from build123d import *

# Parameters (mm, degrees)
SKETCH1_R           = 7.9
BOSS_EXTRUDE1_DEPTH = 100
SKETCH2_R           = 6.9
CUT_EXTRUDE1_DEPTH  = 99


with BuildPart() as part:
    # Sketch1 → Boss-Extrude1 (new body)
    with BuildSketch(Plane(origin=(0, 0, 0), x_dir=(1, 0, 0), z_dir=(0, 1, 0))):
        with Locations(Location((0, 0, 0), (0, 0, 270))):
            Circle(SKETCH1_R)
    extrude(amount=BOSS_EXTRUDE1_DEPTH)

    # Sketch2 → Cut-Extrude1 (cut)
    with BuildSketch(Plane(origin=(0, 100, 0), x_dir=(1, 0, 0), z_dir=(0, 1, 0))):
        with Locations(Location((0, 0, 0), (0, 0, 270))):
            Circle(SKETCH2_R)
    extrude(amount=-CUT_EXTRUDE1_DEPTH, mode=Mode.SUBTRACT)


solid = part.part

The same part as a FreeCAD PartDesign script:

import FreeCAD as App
import Part
import Sketcher
from FreeCAD import Vector

doc = App.newDocument("Part")
body = doc.addObject("PartDesign::Body", "Body")

# Sketch on XZ plane
sketch1 = body.newObject("Sketcher::SketchObject", "Sketch")
sketch1.AttachmentSupport = (doc.getObject("XZ_Plane"), [""])
sketch1.MapMode = "FlatFace"
sketch1.addGeometry(Part.Circle(Vector(0, 0, 0), Vector(0, 0, 1), 8), False)
sketch1.addConstraint(Sketcher.Constraint("Coincident", 0, 3, -1, 1))
sketch1.addConstraint(Sketcher.Constraint("Diameter", 0, 15.8))
pad1 = body.newObject("PartDesign::Pad", "Pad")
pad1.Profile = sketch1
pad1.Length = 100
pad1.Reversed = True

# Sketch on XZ plane
sketch2 = body.newObject("Sketcher::SketchObject", "Sketch001")
sketch2.AttachmentSupport = (doc.getObject("XZ_Plane"), [""])
sketch2.MapMode = "FlatFace"
sketch2.AttachmentOffset = App.Placement(Vector(0, 0, -100), App.Rotation())
sketch2.addGeometry(Part.Circle(Vector(0, 0, 0), Vector(0, 0, 1), 7), False)
sketch2.addConstraint(Sketcher.Constraint("Coincident", 0, 3, -1, 1))
sketch2.addConstraint(Sketcher.Constraint("Diameter", 0, 13.8))
pocket1 = body.newObject("PartDesign::Pocket", "Pocket")
pocket1.Profile = sketch2
pocket1.Length = 99
pocket1.Reversed = True

doc.recompute()
